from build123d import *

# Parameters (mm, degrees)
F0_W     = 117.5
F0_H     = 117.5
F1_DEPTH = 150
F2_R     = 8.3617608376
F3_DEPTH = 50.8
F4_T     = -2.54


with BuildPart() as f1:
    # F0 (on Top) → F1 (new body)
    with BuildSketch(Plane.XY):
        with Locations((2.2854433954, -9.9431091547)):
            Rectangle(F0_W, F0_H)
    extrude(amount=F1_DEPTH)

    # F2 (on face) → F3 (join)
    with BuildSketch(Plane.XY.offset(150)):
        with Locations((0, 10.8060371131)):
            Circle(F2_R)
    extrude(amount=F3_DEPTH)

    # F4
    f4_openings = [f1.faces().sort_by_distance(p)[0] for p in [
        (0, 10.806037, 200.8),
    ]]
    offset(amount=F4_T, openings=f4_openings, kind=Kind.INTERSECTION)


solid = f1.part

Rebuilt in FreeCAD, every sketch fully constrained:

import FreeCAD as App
import Part
import Sketcher

V = App.Vector
Q = App.Units.Quantity


def faces_at(feature, points):
    """Names of the faces that lie closest to the given points."""
    faces = feature.Shape.Faces
    near = lambda p: min(range(len(faces)), key=lambda i: faces[i].distToShape(Part.Vertex(*p))[0])
    return sorted({f"Face{near(p) + 1}" for p in points})

doc = App.newDocument("Part")
body = doc.addObject("PartDesign::Body", "Body")

sketch1 = body.newObject("Sketcher::SketchObject", "Sketch")
sketch1.AttachmentSupport = (doc.getObject("XY_Plane"), [""])
sketch1.MapMode = "FlatFace"
sketch1.addGeometry(Part.LineSegment(V(-56, 49, 0), V(-56, -69, 0)), False)
sketch1.addGeometry(Part.LineSegment(V(-56, -69, 0), V(61, -69, 0)), False)
sketch1.addGeometry(Part.LineSegment(V(61, -69, 0), V(61, 49, 0)), False)
sketch1.addGeometry(Part.LineSegment(V(61, 49, 0), V(-56, 49, 0)), False)
sketch1.addConstraint(Sketcher.Constraint("Coincident", 0, 2, 1, 1))
sketch1.addConstraint(Sketcher.Constraint("Coincident", 1, 2, 2, 1))
sketch1.addConstraint(Sketcher.Constraint("Coincident", 2, 2, 3, 1))
sketch1.addConstraint(Sketcher.Constraint("Coincident", 3, 2, 0, 1))
sketch1.addConstraint(Sketcher.Constraint("Vertical", 0))
sketch1.addConstraint(Sketcher.Constraint("Horizontal", 1))
sketch1.addConstraint(Sketcher.Constraint("Vertical", 2))
sketch1.addConstraint(Sketcher.Constraint("Horizontal", 3))
sketch1.addConstraint(Sketcher.Constraint("Equal", 3, 0))
sketch1.addConstraint(Sketcher.Constraint("DistanceX", 1, 1, 1, 2, Q("117.5 mm")))
sketch1.addConstraint(Sketcher.Constraint("DistanceY", 0, 2, -1, 1, Q("68.693109 mm")))
sketch1.addConstraint(Sketcher.Constraint("DistanceX", 0, 2, -1, 1, Q("56.464557 mm")))
pad1 = body.newObject("PartDesign::Pad", "Pad")
pad1.Profile = sketch1
pad1.Length = 150

sketch2 = body.newObject("Sketcher::SketchObject", "Sketch001")
sketch2.AttachmentSupport = (doc.getObject("XY_Plane"), [""])
sketch2.MapMode = "FlatFace"
sketch2.AttachmentOffset = App.Placement(V(0, 0, 150), App.Rotation())
sketch2.addGeometry(Part.Circle(V(0, 11, 0), V(0, 0, 1), 8), False)
sketch2.addConstraint(Sketcher.Constraint("PointOnObject", 0, 3, -2))
sketch2.addConstraint(Sketcher.Constraint("Diameter", 0, Q("16.723522 mm")))
sketch2.addConstraint(Sketcher.Constraint("DistanceY", -1, 1, 0, 3, Q("10.806037 mm")))
pad2 = body.newObject("PartDesign::Pad", "Pad001")
pad2.Profile = sketch2
pad2.Length = 50.8
doc.recompute()

thickness = body.newObject("PartDesign::Thickness", "Thickness")
thickness.Base = (pad2, faces_at(pad2, [(0, 10.806, 200.8)]))
thickness.Value = 2.54
thickness.Reversed = True
thickness.Join = "Intersection"

doc.recompute()
